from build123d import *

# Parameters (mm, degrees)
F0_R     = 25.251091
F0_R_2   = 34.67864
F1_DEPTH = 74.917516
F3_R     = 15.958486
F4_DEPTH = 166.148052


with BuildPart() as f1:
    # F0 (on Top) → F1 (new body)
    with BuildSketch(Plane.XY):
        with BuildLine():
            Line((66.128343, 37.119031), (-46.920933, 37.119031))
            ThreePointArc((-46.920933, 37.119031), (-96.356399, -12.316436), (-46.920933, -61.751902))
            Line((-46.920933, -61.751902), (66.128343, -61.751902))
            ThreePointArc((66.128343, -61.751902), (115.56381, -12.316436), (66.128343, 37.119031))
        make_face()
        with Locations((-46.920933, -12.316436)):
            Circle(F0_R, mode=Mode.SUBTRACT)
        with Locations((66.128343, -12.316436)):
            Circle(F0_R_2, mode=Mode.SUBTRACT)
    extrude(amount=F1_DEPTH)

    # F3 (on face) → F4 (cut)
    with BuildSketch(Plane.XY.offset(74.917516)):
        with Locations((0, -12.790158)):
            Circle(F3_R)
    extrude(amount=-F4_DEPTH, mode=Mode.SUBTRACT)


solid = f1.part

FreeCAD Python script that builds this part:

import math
import FreeCAD as App
import Part
import Sketcher

V = App.Vector

doc = App.newDocument("Part")
body = doc.addObject("PartDesign::Body", "Body")

# Sketch on XY plane
sketch1 = doc.addObject("Sketcher::SketchObject", "Sketch")
body.addObject(sketch1)
sketch1.AttachmentSupport = (doc.XY_Plane, [""])
sketch1.MapMode = "FlatFace"
sketch1.addGeometry(Part.LineSegment(V(66, 37, 0), V(-47, 37, 0)), False)
sketch1.addGeometry(Part.ArcOfCircle(Part.Circle(V(-47, -12, 0), V(0, 0, 1), 49), math.radians(90), math.radians(270)), False)
sketch1.addGeometry(Part.LineSegment(V(-47, -62, 0), V(66, -62, 0)), False)
sketch1.addGeometry(Part.ArcOfCircle(Part.Circle(V(66, -12, 0), V(0, 0, 1), 49), math.radians(-90), math.radians(90)), False)
sketch1.addGeometry(Part.Circle(V(-47, -12, 0), V(0, 0, 1), 25), False)
sketch1.addGeometry(Part.Circle(V(66, -12, 0), V(0, 0, 1), 35), False)
sketch1.addConstraint(Sketcher.Constraint("Tangent", 0, 2, 1, 1))
sketch1.addConstraint(Sketcher.Constraint("Tangent", 1, 2, 2, 1))
sketch1.addConstraint(Sketcher.Constraint("Tangent", 2, 2, 3, 1))
sketch1.addConstraint(Sketcher.Constraint("Tangent", 3, 2, 0, 1))
sketch1.addConstraint(Sketcher.Constraint("Horizontal", 0))
sketch1.addConstraint(Sketcher.Constraint("Horizontal", 2))
sketch1.addConstraint(Sketcher.Constraint("Coincident", 4, 3, 1, 3))
sketch1.addConstraint(Sketcher.Constraint("Coincident", 5, 3, 3, 3))
sketch1.addConstraint(Sketcher.Constraint("Diameter", 4, 50.502182))
sketch1.addConstraint(Sketcher.Constraint("Diameter", 5, 69.35728))
sketch1.addConstraint(Sketcher.Constraint("Radius", 1, 49.435466))
sketch1.addConstraint(Sketcher.Constraint("DistanceX", 0, 2, 0, 1, 113.049276))
sketch1.addConstraint(Sketcher.Constraint("DistanceY", -1, 1, 0, 2, 37.119031))
sketch1.addConstraint(Sketcher.Constraint("DistanceX", 1, 3, -1, 1, 46.920932))
pad1 = doc.addObject("PartDesign::Pad", "Pad")
body.addObject(pad1)
pad1.Profile = sketch1
pad1.Length = 74.917516

# Sketch on XY plane
sketch2 = doc.addObject("Sketcher::SketchObject", "Sketch001")
body.addObject(sketch2)
sketch2.AttachmentSupport = (doc.XY_Plane, [""])
sketch2.MapMode = "FlatFace"
sketch2.AttachmentOffset = App.Placement(V(0, 0, 74.917516), App.Rotation())
sketch2.addGeometry(Part.Circle(V(0, -13, 0), V(0, 0, 1), 16), False)
sketch2.addConstraint(Sketcher.Constraint("PointOnObject", 0, 3, -2))
sketch2.addConstraint(Sketcher.Constraint("Diameter", 0, 31.916972))
sketch2.addConstraint(Sketcher.Constraint("DistanceY", 0, 3, -1, 1, 12.790158))
pocket1 = doc.addObject("PartDesign::Pocket", "Pocket")
body.addObject(pocket1)
pocket1.Profile = sketch2
pocket1.Length = 166.148052

doc.recompute()
